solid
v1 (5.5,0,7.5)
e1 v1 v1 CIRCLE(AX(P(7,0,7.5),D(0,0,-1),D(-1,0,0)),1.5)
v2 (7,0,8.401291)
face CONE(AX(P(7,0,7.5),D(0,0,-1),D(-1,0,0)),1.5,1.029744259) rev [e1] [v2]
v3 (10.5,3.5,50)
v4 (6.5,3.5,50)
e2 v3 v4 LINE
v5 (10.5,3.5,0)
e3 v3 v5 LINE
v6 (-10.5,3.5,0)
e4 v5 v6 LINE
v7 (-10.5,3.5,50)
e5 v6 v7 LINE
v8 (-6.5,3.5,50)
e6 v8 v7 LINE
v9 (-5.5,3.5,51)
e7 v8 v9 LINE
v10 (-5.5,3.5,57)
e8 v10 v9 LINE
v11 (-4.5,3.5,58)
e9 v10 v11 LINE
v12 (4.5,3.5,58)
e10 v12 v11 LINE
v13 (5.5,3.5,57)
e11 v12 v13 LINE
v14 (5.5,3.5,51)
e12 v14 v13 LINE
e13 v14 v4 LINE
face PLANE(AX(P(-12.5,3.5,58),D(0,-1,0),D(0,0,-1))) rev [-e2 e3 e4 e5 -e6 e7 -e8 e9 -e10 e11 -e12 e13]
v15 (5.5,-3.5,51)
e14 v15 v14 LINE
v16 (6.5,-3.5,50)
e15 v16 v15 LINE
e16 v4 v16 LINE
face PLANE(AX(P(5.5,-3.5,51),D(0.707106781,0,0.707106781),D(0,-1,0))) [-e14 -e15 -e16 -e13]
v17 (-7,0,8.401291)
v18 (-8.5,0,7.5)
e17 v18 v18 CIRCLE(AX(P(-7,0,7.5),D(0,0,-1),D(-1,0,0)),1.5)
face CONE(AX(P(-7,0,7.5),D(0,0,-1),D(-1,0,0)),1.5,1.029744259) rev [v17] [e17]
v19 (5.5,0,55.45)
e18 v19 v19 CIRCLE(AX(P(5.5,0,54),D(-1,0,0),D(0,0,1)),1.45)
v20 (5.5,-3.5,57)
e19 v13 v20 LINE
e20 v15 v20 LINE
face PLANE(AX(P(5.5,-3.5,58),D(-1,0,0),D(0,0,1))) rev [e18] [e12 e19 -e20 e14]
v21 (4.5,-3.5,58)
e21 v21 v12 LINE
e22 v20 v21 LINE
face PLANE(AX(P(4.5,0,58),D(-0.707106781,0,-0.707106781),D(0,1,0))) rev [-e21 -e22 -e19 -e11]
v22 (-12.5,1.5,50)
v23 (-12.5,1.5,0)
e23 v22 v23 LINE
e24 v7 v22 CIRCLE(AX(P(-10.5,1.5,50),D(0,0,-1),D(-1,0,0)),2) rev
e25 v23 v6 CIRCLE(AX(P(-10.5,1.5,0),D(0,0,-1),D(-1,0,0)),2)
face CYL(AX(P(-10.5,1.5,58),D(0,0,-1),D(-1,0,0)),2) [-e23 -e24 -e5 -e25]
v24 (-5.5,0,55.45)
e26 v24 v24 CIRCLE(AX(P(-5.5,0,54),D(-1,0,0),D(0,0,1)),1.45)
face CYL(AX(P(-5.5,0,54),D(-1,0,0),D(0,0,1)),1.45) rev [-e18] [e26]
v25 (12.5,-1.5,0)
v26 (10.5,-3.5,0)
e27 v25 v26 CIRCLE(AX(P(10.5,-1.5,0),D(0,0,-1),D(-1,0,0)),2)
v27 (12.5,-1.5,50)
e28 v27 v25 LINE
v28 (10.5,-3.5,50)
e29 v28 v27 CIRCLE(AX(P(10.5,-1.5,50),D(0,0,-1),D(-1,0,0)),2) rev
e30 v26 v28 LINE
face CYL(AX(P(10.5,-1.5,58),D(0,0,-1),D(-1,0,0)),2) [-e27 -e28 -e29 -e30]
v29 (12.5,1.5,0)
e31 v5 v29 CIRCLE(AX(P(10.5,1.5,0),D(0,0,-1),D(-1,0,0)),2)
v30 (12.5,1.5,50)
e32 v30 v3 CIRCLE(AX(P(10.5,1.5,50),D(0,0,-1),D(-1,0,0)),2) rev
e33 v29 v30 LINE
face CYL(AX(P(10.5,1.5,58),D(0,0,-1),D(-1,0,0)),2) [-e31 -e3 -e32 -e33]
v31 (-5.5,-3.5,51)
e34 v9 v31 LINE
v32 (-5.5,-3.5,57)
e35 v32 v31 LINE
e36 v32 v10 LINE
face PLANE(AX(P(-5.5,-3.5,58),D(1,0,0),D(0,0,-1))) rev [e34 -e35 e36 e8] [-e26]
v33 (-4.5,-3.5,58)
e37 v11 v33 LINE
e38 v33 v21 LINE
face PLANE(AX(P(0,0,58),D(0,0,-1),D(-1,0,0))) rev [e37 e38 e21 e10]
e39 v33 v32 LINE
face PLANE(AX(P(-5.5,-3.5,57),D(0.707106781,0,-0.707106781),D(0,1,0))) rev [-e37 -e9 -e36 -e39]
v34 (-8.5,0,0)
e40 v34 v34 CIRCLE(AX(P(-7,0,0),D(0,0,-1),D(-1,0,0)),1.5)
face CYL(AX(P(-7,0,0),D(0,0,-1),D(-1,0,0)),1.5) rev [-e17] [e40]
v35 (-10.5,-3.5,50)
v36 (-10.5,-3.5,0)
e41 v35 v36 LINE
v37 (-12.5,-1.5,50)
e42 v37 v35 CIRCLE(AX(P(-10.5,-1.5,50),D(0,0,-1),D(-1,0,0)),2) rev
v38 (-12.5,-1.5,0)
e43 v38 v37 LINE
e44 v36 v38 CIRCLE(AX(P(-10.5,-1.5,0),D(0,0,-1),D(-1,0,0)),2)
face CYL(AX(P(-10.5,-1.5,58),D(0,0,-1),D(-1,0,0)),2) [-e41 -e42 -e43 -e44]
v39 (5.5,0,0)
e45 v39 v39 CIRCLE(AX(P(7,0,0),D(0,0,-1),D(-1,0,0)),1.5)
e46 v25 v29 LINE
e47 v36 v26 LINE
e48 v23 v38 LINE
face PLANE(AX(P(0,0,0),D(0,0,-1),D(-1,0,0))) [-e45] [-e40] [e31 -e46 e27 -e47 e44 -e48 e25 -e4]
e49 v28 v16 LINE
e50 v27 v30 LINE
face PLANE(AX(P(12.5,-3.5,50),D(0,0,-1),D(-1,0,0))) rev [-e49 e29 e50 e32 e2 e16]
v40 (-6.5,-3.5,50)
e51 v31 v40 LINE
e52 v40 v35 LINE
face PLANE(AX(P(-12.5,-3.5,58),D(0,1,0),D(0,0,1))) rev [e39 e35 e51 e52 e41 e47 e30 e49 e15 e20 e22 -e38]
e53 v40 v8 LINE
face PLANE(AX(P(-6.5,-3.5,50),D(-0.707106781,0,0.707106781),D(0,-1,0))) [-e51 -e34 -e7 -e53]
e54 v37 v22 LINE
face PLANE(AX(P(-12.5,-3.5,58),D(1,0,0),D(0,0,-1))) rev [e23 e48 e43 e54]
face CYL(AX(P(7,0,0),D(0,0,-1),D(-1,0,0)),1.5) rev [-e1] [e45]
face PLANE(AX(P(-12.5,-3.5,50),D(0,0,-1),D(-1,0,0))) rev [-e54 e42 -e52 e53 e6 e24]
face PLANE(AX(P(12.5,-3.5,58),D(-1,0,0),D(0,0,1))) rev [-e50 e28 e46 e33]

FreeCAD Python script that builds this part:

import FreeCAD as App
import Part
import Sketcher


def edges_at(feature, points):
    """Names of the edges that pass closest to the given points."""
    edges = feature.Shape.Edges
    near = lambda p: min(range(len(edges)), key=lambda i: edges[i].distToShape(Part.Vertex(*p))[0])
    return sorted({f"Edge{near(p) + 1}" for p in points})

doc = App.newDocument("Part")
body = doc.addObject("PartDesign::Body", "Body")

# Sketch on XY plane
sketch1 = doc.addObject("Sketcher::SketchObject", "Sketch")
body.addObject(sketch1)
sketch1.AttachmentSupport = (doc.XY_Plane, [""])
sketch1.MapMode = "FlatFace"
sketch1.addGeometry(Part.LineSegment(App.Vector(-12, 4, 0), App.Vector(-12, -4, 0)), False)
sketch1.addGeometry(Part.LineSegment(App.Vector(-12, -4, 0), App.Vector(12, -4, 0)), False)
sketch1.addGeometry(Part.LineSegment(App.Vector(12, -4, 0), App.Vector(12, 4, 0)), False)
sketch1.addGeometry(Part.LineSegment(App.Vector(12, 4, 0), App.Vector(-12, 4, 0)), False)
sketch1.addConstraint(Sketcher.Constraint("Coincident", 0, 2, 1, 1))
sketch1.addConstraint(Sketcher.Constraint("Coincident", 1, 2, 2, 1))
sketch1.addConstraint(Sketcher.Constraint("Coincident", 2, 2, 3, 1))
sketch1.addConstraint(Sketcher.Constraint("Coincident", 3, 2, 0, 1))
sketch1.addConstraint(Sketcher.Constraint("Vertical", 0))
sketch1.addConstraint(Sketcher.Constraint("Horizontal", 1))
sketch1.addConstraint(Sketcher.Constraint("Vertical", 2))
sketch1.addConstraint(Sketcher.Constraint("Horizontal", 3))
sketch1.addConstraint(Sketcher.Constraint("Symmetric", 0, 2, 2, 2, -1, 1))
sketch1.addConstraint(Sketcher.Constraint("DistanceX", 1, 1, 1, 2, 25.0))
sketch1.addConstraint(Sketcher.Constraint("DistanceY", 0, 2, 0, 1, 7.0))
pad1 = doc.addObject("PartDesign::Pad", "Pad")
body.addObject(pad1)
pad1.Profile = sketch1
pad1.Length = 58

# Sketch on XZ plane
sketch2 = doc.addObject("Sketcher::SketchObject", "Sketch001")
body.addObject(sketch2)
sketch2.AttachmentSupport = (doc.XZ_Plane, [""])
sketch2.MapMode = "FlatFace"
sketch2.AttachmentOffset = App.Placement(App.Vector(0, 0, -3.5), App.Rotation())
sketch2.addGeometry(Part.LineSegment(App.Vector(-12, 50, 0), App.Vector(-12, 58, 0)), False)
sketch2.addGeometry(Part.LineSegment(App.Vector(-12, 58, 0), App.Vector(-6, 58, 0)), False)
sketch2.addGeometry(Part.LineSegment(App.Vector(-6, 58, 0), App.Vector(-6, 50, 0)), False)
sketch2.addGeometry(Part.LineSegment(App.Vector(-6, 50, 0), App.Vector(-12, 50, 0)), False)
sketch2.addGeometry(Part.LineSegment(App.Vector(6, 50, 0), App.Vector(6, 58, 0)), False)
sketch2.addGeometry(Part.LineSegment(App.Vector(6, 58, 0), App.Vector(12, 58, 0)), False)
sketch2.addGeometry(Part.LineSegment(App.Vector(12, 58, 0), App.Vector(12, 50, 0)), False)
sketch2.addGeometry(Part.LineSegment(App.Vector(12, 50, 0), App.Vector(6, 50, 0)), False)
sketch2.addConstraint(Sketcher.Constraint("Coincident", 0, 2, 1, 1))
sketch2.addConstraint(Sketcher.Constraint("Coincident", 1, 2, 2, 1))
sketch2.addConstraint(Sketcher.Constraint("Coincident", 2, 2, 3, 1))
sketch2.addConstraint(Sketcher.Constraint("Coincident", 3, 2, 0, 1))
sketch2.addConstraint(Sketcher.Constraint("Coincident", 4, 2, 5, 1))
sketch2.addConstraint(Sketcher.Constraint("Coincident", 5, 2, 6, 1))
sketch2.addConstraint(Sketcher.Constraint("Coincident", 6, 2, 7, 1))
sketch2.addConstraint(Sketcher.Constraint("Coincident", 7, 2, 4, 1))
sketch2.addConstraint(Sketcher.Constraint("Vertical", 0))
sketch2.addConstraint(Sketcher.Constraint("Horizontal", 1))
sketch2.addConstraint(Sketcher.Constraint("Vertical", 2))
sketch2.addConstraint(Sketcher.Constraint("Horizontal", 3))
sketch2.addConstraint(Sketcher.Constraint("Vertical", 4))
sketch2.addConstraint(Sketcher.Constraint("Horizontal", 5))
sketch2.addConstraint(Sketcher.Constraint("Vertical", 6))
sketch2.addConstraint(Sketcher.Constraint("Horizontal", 7))
sketch2.addConstraint(Sketcher.Constraint("Symmetric", 1, 2, 4, 2, -2))
sketch2.addConstraint(Sketcher.Constraint("Symmetric", 3, 2, 6, 2, -2))
sketch2.addConstraint(Sketcher.Constraint("DistanceX", 1, 1, 1, 2, 7.0))
sketch2.addConstraint(Sketcher.Constraint("DistanceY", 0, 1, 0, 2, 8.0))
sketch2.addConstraint(Sketcher.Constraint("DistanceY", -1, 1, 0, 2, 58.0))
sketch2.addConstraint(Sketcher.Constraint("DistanceX", 1, 2, 4, 2, 11.0))
pocket1 = doc.addObject("PartDesign::Pocket", "Pocket")
body.addObject(pocket1)
pocket1.Profile = sketch2
pocket1.Type = "ThroughAll"
pocket1.Reversed = True

# Sketch on XY plane
sketch3 = doc.addObject("Sketcher::SketchObject", "Sketch002")
body.addObject(sketch3)
sketch3.AttachmentSupport = (doc.XY_Plane, [""])
sketch3.MapMode = "FlatFace"
sketch3.addGeometry(Part.Circle(App.Vector(7, 0, 0), App.Vector(0, 0, 1), 1.5), False)
sketch3.addGeometry(Part.Circle(App.Vector(-7, 0, 0), App.Vector(0, 0, 1), 1.5), False)
sketch3.addConstraint(Sketcher.Constraint("Equal", 0, 1))
sketch3.addConstraint(Sketcher.Constraint("Symmetric", 0, 3, 1, 3, -1, 1))
sketch3.addConstraint(Sketcher.Constraint("PointOnObject", 0, 3, -1))
sketch3.addConstraint(Sketcher.Constraint("Diameter", 0, 3.0))
sketch3.addConstraint(Sketcher.Constraint("DistanceX", -1, 1, 0, 3, 7.0))
doc.recompute()
hole = doc.addObject("PartDesign::Hole", "Hole")
body.addObject(hole)
hole.Profile = sketch3
hole.ThreadType = "None"
hole.Diameter = 3
hole.DepthType = "Dimension"
hole.Depth = 7.5
hole.DrillPoint = "Angled"
hole.DrillPointAngle = 118
hole.Reversed = True
doc.recompute()

chamfer = doc.addObject("PartDesign::Chamfer", "Chamfer")
body.addObject(chamfer)
chamfer.Base = (hole, edges_at(hole, [(-5.5, 0, 58), (5.5, 0, 58)]))
chamfer.Size = 1

# Sketch on YZ plane
sketch4 = doc.addObject("Sketcher::SketchObject", "Sketch003")
body.addObject(sketch4)
sketch4.AttachmentSupport = (doc.YZ_Plane, [""])
sketch4.MapMode = "FlatFace"
sketch4.AttachmentOffset = App.Placement(App.Vector(0, 0, -5.5), App.Rotation())
sketch4.addGeometry(Part.Circle(App.Vector(0, 54, 0), App.Vector(0, 0, 1), 1.4), False)
sketch4.addConstraint(Sketcher.Constraint("PointOnObject", 0, 3, -2))
sketch4.addConstraint(Sketcher.Constraint("Diameter", 0, 2.9))
sketch4.addConstraint(Sketcher.Constraint("DistanceY", -1, 1, 0, 3, 54.0))
doc.recompute()
hole2 = doc.addObject("PartDesign::Hole", "Hole001")
body.addObject(hole2)
hole2.Profile = sketch4
hole2.ThreadType = "None"
hole2.Diameter = 2.9
hole2.DepthType = "ThroughAll"
hole2.Reversed = True
doc.recompute()

fillet = doc.addObject("PartDesign::Fillet", "Fillet")
body.addObject(fillet)
fillet.Base = (hole2, edges_at(hole2, [
    (-12.5, -3.5, 25),
    (-12.5, 3.5, 25),
    (12.5, -3.5, 25),
    (12.5, 3.5, 25),
]))
fillet.Radius = 2
doc.recompute()

chamfer2 = doc.addObject("PartDesign::Chamfer", "Chamfer001")
body.addObject(chamfer2)
chamfer2.Base = (fillet, edges_at(fillet, [(-5.5, 0, 50), (5.5, 0, 50)]))
chamfer2.Size = 1

doc.recompute()
